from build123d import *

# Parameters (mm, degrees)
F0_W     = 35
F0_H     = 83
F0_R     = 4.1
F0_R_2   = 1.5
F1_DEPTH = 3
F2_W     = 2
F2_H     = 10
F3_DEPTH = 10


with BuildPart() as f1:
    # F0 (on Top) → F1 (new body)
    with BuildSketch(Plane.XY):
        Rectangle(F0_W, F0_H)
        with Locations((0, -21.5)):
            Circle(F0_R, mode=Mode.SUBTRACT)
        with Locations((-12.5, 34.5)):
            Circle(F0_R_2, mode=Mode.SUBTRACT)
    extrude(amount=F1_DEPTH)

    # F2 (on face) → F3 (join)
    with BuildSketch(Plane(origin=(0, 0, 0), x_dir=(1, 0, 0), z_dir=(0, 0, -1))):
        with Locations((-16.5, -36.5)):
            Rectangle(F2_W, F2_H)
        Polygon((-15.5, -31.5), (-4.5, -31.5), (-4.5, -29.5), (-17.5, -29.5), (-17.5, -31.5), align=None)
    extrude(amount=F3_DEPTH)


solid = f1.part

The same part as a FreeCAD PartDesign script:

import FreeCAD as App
import Part
import Sketcher


def add_polygon(sketch, points):
    """Adds a closed chain of lines whose ends are joined by coincident constraints."""
    first, n = sketch.GeometryCount, len(points)
    for a, b in zip(points, points[1:] + points[:1]):
        sketch.addGeometry(Part.LineSegment(App.Vector(*a, 0), App.Vector(*b, 0)), False)
    for i in range(n):
        sketch.addConstraint(Sketcher.Constraint("Coincident", first + i, 2, first + (i + 1) % n, 1))

doc = App.newDocument("Part")
body = doc.addObject("PartDesign::Body", "Body")

sketch1 = body.newObject("Sketcher::SketchObject", "Sketch")
sketch1.AttachmentSupport = (doc.getObject("XY_Plane"), [""])
sketch1.MapMode = "FlatFace"
add_polygon(sketch1, [(-17.5, 41.5), (-17.5, -41.5), (17.5, -41.5), (17.5, 41.5)])
sketch1.addGeometry(Part.Circle(App.Vector(0, -21.5, 0), App.Vector(0, 0, 1), 4.1), False)
sketch1.addGeometry(Part.Circle(App.Vector(-12.5, 34.5, 0), App.Vector(0, 0, 1), 1.5), False)
sketch1.addConstraint([
    Sketcher.Constraint("Vertical", 0),
    Sketcher.Constraint("Horizontal", 1),
    Sketcher.Constraint("Vertical", 2),
    Sketcher.Constraint("Horizontal", 3),
    Sketcher.Constraint("Symmetric", 0, 2, 2, 2, -1, 1),
    Sketcher.Constraint("PointOnObject", 4, 3, -2),
    Sketcher.Constraint("Diameter", 5, 3.0),
    Sketcher.Constraint("Diameter", 4, 8.2),
    Sketcher.Constraint("DistanceX", 1, 1, 1, 2, 35.0),
    Sketcher.Constraint("DistanceY", 0, 2, 0, 1, 83.0),
    Sketcher.Constraint("DistanceY", 4, 3, 5, 3, 56.0),
    Sketcher.Constraint("DistanceY", 0, 2, 4, 3, 20.0),
    Sketcher.Constraint("DistanceX", 0, 2, 5, 3, 5.0),
])
pad1 = body.newObject("PartDesign::Pad", "Pad")
pad1.Profile = sketch1
pad1.Length = 3

sketch2 = body.newObject("Sketcher::SketchObject", "Sketch001")
sketch2.AttachmentSupport = (doc.getObject("XY_Plane"), [""])
sketch2.MapMode = "FlatFace"
add_polygon(sketch2, [(-17.5, 41.5), (-15.5, 41.5), (-15.5, 31.5), (-4.5, 31.5), (-4.5, 29.5), (-17.5, 29.5)])
sketch2.addConstraint([
    Sketcher.Constraint("Horizontal", 0),
    Sketcher.Constraint("Vertical", 1),
    Sketcher.Constraint("Horizontal", 2),
    Sketcher.Constraint("Vertical", 3),
    Sketcher.Constraint("Horizontal", 4),
    Sketcher.Constraint("Vertical", 5),
    Sketcher.Constraint("Equal", 0, 3),
    Sketcher.Constraint("DistanceX", 0, 1, 0, 2, 2.0),
    Sketcher.Constraint("DistanceX", 2, 1, 2, 2, 11.0),
    Sketcher.Constraint("DistanceY", 1, 2, 1, 1, 10.0),
    Sketcher.Constraint("DistanceX", 0, 2, -1, 1, 15.5),
    Sketcher.Constraint("DistanceY", -1, 1, 0, 2, 41.5),
])
pad2 = body.newObject("PartDesign::Pad", "Pad001")
pad2.Profile = sketch2
pad2.Length = 10
pad2.Reversed = True

doc.recompute()
